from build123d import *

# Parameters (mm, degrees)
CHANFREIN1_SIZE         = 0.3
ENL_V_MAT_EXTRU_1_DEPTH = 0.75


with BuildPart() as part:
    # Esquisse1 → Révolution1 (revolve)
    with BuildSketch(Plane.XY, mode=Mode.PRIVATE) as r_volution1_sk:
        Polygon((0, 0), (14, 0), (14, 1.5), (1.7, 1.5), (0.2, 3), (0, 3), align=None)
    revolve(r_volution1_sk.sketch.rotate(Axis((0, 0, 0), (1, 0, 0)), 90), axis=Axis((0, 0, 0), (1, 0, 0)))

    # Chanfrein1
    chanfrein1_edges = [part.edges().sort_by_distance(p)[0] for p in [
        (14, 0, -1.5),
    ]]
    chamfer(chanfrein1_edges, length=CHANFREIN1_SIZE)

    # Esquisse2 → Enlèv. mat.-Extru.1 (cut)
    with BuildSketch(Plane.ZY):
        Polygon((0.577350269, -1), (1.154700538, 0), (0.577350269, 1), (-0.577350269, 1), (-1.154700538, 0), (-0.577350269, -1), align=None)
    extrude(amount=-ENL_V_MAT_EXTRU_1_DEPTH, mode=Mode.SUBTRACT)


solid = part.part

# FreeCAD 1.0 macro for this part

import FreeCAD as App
import Part
import Sketcher
from FreeCAD import Vector
Q = App.Units.Quantity


def edges_at(feature, points):
    """Names of the edges that pass closest to the given points."""
    edges = feature.Shape.Edges
    near = lambda p: min(range(len(edges)), key=lambda i: edges[i].distToShape(Part.Vertex(*p))[0])
    return sorted({f"Edge{near(p) + 1}" for p in points})


def add_polygon(sketch, points):
    """Adds a closed chain of lines whose ends are joined by coincident constraints."""
    first, n = sketch.GeometryCount, len(points)
    for a, b in zip(points, points[1:] + points[:1]):
        sketch.addGeometry(Part.LineSegment(App.Vector(*a, 0), App.Vector(*b, 0)), False)
    for i in range(n):
        sketch.addConstraint(Sketcher.Constraint("Coincident", first + i, 2, first + (i + 1) % n, 1))

doc = App.newDocument("Part")
params = doc.addObject("Spreadsheet::Sheet", "Params")
for row, (alias, value) in enumerate([
    ("sketch1_width", "14 mm"),
    ("sketch1_height", "3 mm"),
    ("sketch1_width2", "12.3 mm"),
    ("sketch1_width3", "0.2 mm"),
    ("revolution_angle", "360 deg"),
    ("chamfer_size", "0.3 mm"),
    ("pocket1_length", "0.75 mm"),
], start=1):
    params.set(f"A{row}", alias)
    params.set(f"B{row}", "=" + value)
    params.setAlias(f"B{row}", alias)

body = doc.addObject("PartDesign::Body", "Body")

sketch1 = doc.addObject("Sketcher::SketchObject", "Sketch")
body.addObject(sketch1)
sketch1.AttachmentSupport = (doc.XY_Plane, [""])
sketch1.MapMode = "FlatFace"
add_polygon(sketch1, [(0, 0), (14, 0), (14, 1.5), (1.7, 1.5), (0.2, 3), (0, 3)])
sketch1.addConstraint(Sketcher.Constraint("Horizontal", 0))
sketch1.addConstraint(Sketcher.Constraint("Vertical", 1))
sketch1.addConstraint(Sketcher.Constraint("Horizontal", 2))
sketch1.addConstraint(Sketcher.Constraint("Horizontal", 4))
sketch1.addConstraint(Sketcher.Constraint("Vertical", 5))
sketch1.addConstraint(Sketcher.Constraint("Coincident", 5, 2, -1, 1))
sketch1.addConstraint(Sketcher.Constraint("DistanceX", 0, 1, 0, 2, Q("14 mm")))
sketch1.addConstraint(Sketcher.Constraint("DistanceY", 5, 2, 5, 1, Q("3 mm")))
sketch1.addConstraint(Sketcher.Constraint("Angle", 3, Q("135 deg")))
sketch1.addConstraint(Sketcher.Constraint("DistanceX", 2, 2, 2, 1, Q("12.3 mm")))
sketch1.addConstraint(Sketcher.Constraint("DistanceX", 4, 2, 4, 1, Q("0.2 mm")))
sketch1.setExpression("Constraints[12]", "Params.sketch1_width")
sketch1.setExpression("Constraints[13]", "Params.sketch1_height")
sketch1.setExpression("Constraints[15]", "Params.sketch1_width2")
sketch1.setExpression("Constraints[16]", "Params.sketch1_width3")
revolution = doc.addObject("PartDesign::Revolution", "Revolution")
body.addObject(revolution)
revolution.Profile = sketch1
revolution.ReferenceAxis = (sketch1, ["H_Axis"])
revolution.setExpression("Angle", "Params.revolution_angle")
doc.recompute()

chamfer = doc.addObject("PartDesign::Chamfer", "Chamfer")
body.addObject(chamfer)
chamfer.Base = (revolution, edges_at(revolution, [(14, 0, -1.5)]))
chamfer.setExpression("Size", "Params.chamfer_size")

sketch2 = doc.addObject("Sketcher::SketchObject", "Sketch001")
body.addObject(sketch2)
sketch2.AttachmentSupport = (doc.YZ_Plane, [""])
sketch2.MapMode = "FlatFace"
add_polygon(sketch2, [(-1, 0.6), (0, 1.2), (1, 0.6), (1, -0.6), (0, -1.2), (-1, -0.6)])
sketch2.addConstraint(Sketcher.Constraint("Vertical", 2))
sketch2.addConstraint(Sketcher.Constraint("Vertical", 5))
sketch2.addConstraint(Sketcher.Constraint("Symmetric", 0, 2, 3, 2, -1, 1))
sketch2.addConstraint(Sketcher.Constraint("Symmetric", 1, 2, 4, 2, -1, 1))
sketch2.addConstraint(Sketcher.Constraint("PointOnObject", 0, 2, -2))
sketch2.addConstraint(Sketcher.Constraint("Parallel", 0, 3))
sketch2.addConstraint(Sketcher.Constraint("Horizontal", 2, 2, 4, 2))
sketch2.addConstraint(Sketcher.Constraint("Angle", 0, Q("30 deg")))
sketch2.addConstraint(Sketcher.Constraint("DistanceX", -1, 1, 1, 2, Q("1 mm")))
sketch2.addConstraint(Sketcher.Constraint("DistanceY", 2, 2, 2, 1, Q("1.154701 mm")))
pocket1 = doc.addObject("PartDesign::Pocket", "Pocket")
body.addObject(pocket1)
pocket1.Profile = sketch2
pocket1.setExpression("Length", "Params.pocket1_length")
pocket1.Reversed = True

doc.recompute()
